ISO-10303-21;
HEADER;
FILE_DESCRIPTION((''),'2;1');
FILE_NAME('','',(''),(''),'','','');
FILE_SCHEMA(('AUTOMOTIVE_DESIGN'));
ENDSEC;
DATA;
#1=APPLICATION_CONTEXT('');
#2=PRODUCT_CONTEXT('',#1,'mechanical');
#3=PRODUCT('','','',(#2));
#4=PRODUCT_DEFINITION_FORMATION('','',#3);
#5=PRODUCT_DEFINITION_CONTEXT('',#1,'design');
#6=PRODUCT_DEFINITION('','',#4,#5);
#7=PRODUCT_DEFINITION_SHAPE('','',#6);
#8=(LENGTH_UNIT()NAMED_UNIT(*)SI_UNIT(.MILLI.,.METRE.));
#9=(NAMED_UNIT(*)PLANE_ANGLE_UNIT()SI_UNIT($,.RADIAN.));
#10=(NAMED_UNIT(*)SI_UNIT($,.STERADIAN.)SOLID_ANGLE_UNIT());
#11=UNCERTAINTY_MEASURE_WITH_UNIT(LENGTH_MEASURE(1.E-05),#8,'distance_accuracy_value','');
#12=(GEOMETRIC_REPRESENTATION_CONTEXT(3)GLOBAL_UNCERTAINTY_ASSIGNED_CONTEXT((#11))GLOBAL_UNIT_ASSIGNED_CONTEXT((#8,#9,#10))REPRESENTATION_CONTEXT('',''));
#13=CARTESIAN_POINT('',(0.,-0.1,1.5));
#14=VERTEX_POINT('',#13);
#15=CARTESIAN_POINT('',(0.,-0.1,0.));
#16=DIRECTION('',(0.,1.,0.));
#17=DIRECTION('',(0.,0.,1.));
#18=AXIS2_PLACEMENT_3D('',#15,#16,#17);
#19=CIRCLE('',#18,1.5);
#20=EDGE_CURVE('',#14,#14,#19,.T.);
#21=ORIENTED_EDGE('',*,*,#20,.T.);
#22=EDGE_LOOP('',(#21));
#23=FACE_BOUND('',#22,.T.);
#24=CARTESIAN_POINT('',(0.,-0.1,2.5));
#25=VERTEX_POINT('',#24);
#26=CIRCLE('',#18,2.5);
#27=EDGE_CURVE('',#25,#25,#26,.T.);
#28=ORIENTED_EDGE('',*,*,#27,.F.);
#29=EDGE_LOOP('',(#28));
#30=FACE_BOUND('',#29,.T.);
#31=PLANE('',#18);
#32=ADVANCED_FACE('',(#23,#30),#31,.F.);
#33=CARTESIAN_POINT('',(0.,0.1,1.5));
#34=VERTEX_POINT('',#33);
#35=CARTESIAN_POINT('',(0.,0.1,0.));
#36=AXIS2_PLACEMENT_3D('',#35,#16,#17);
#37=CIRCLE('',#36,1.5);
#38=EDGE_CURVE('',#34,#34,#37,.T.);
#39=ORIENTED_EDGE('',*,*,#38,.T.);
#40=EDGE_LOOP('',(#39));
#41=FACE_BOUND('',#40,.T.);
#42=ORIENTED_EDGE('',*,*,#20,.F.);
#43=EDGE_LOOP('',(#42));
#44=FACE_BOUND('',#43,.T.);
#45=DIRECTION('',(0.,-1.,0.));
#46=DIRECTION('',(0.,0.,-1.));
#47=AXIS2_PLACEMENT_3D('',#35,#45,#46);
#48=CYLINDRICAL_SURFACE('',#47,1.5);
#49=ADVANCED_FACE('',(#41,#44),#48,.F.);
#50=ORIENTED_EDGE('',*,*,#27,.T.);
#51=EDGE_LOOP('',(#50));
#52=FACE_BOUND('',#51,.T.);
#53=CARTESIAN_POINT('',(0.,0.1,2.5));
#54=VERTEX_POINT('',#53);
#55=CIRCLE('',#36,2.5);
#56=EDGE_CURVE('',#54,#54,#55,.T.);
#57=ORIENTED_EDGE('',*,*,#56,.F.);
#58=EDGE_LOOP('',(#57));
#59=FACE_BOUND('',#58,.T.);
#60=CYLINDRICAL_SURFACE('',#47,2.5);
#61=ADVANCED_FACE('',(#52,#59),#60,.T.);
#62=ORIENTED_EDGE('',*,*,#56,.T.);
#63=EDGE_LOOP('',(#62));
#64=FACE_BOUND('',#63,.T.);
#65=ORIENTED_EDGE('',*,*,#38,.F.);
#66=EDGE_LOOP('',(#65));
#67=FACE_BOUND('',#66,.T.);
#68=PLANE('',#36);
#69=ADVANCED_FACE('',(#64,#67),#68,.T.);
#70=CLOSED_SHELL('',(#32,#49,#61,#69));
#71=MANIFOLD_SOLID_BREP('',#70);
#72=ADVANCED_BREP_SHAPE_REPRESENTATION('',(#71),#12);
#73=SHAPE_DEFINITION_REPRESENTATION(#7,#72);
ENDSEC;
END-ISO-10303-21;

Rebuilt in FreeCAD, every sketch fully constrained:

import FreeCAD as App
import Part
import Sketcher

V = App.Vector

doc = App.newDocument("Part")
body = doc.addObject("PartDesign::Body", "Body")

# Sketch on XZ plane
sketch1 = doc.addObject("Sketcher::SketchObject", "Sketch")
body.addObject(sketch1)
sketch1.AttachmentSupport = (doc.XZ_Plane, [""])
sketch1.MapMode = "FlatFace"
sketch1.addGeometry([
    Part.Circle(V(0, 0, 0), V(0, 0, 1), 2.5),
    Part.Circle(V(0, 0, 0), V(0, 0, 1), 1.5),
], False)
sketch1.addConstraint([
    Sketcher.Constraint("Coincident", 0, 3, -1, 1),
    Sketcher.Constraint("Coincident", 1, 3, -1, 1),
    Sketcher.Constraint("Diameter", 0, 5.0),
    Sketcher.Constraint("Diameter", 1, 3.0),
])
pad1 = doc.addObject("PartDesign::Pad", "Pad")
body.addObject(pad1)
pad1.Profile = sketch1
pad1.Length = 0.2
pad1.Midplane = True

doc.recompute()
